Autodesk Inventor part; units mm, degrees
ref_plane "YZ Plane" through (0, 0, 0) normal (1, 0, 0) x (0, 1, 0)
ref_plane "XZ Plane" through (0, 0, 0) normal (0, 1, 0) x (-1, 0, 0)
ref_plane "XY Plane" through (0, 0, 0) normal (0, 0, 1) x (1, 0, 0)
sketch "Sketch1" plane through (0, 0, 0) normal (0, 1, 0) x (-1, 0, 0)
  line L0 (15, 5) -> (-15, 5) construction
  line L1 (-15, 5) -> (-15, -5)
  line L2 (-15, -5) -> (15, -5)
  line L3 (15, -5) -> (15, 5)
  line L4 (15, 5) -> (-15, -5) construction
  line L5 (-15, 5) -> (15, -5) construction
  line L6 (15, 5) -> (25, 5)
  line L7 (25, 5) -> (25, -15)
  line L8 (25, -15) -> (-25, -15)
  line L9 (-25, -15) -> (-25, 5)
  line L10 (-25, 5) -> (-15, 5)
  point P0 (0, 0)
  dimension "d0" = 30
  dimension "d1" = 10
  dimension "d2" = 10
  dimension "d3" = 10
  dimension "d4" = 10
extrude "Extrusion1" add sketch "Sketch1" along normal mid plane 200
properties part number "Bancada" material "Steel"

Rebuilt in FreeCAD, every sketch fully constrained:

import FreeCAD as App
import Part
import Sketcher
from FreeCAD import Vector
Q = App.Units.Quantity


def add_polygon(sketch, points):
    """Adds a closed chain of lines whose ends are joined by coincident constraints."""
    first, n = sketch.GeometryCount, len(points)
    for a, b in zip(points, points[1:] + points[:1]):
        sketch.addGeometry(Part.LineSegment(App.Vector(*a, 0), App.Vector(*b, 0)), False)
    for i in range(n):
        sketch.addConstraint(Sketcher.Constraint("Coincident", first + i, 2, first + (i + 1) % n, 1))

doc = App.newDocument("Part")
body = doc.addObject("PartDesign::Body", "Body")

# Sketch on XZ plane
sketch1 = doc.addObject("Sketcher::SketchObject", "Sketch")
body.addObject(sketch1)
sketch1.AttachmentSupport = (doc.XZ_Plane, [""])
sketch1.MapMode = "FlatFace"
add_polygon(sketch1, [(15, -5), (15, 5), (25, 5), (25, -15), (-25, -15), (-25, 5), (-15, 5), (-15, -5)])  # lines 0-7
sketch1.addConstraint([
    Sketcher.Constraint("Vertical", 0),
    Sketcher.Constraint("Horizontal", 1),
    Sketcher.Constraint("Vertical", 2),
    Sketcher.Constraint("Horizontal", 3),
    Sketcher.Constraint("Vertical", 4),
    Sketcher.Constraint("Horizontal", 5),
    Sketcher.Constraint("Vertical", 6),
    Sketcher.Constraint("Horizontal", 7),
    Sketcher.Constraint("Symmetric", 0, 2, 6, 2, -1, 1),
    Sketcher.Constraint("Symmetric", 1, 2, 4, 2, -2),
    Sketcher.Constraint("Equal", 5, 0),
    Sketcher.Constraint("DistanceX", 1, 1, 1, 2, Q("0.3937 in")),
    Sketcher.Constraint("DistanceX", 7, 1, 7, 2, Q("1.1811 in")),
    Sketcher.Constraint("DistanceY", 3, 2, 6, 2, Q("0.3937 in")),
])
pad1 = doc.addObject("PartDesign::Pad", "Pad")
body.addObject(pad1)
pad1.Profile = sketch1
pad1.Length = 200
pad1.Midplane = True

doc.recompute()
